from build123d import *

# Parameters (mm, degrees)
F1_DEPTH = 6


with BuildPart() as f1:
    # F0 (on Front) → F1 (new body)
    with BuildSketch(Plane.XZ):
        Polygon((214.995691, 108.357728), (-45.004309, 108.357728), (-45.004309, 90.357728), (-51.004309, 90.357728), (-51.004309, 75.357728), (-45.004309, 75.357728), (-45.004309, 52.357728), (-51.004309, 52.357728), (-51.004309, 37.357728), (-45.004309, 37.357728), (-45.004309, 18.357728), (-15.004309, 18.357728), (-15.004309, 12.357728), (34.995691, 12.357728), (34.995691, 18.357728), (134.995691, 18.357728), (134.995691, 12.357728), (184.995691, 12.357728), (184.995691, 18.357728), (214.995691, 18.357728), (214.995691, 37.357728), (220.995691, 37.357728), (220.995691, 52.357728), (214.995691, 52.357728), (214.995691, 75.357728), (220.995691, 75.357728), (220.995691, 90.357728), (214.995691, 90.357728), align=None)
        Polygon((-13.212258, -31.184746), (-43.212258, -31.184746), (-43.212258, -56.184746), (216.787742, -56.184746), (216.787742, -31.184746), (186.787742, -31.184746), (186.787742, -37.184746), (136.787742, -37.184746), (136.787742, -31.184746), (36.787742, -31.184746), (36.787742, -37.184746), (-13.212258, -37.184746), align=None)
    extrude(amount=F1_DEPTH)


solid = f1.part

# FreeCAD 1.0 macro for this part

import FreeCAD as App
import Part
import Sketcher

V = App.Vector
Q = App.Units.Quantity

doc = App.newDocument("Part")
body = doc.addObject("PartDesign::Body", "Body")
body.AllowCompound = True

sketch1 = body.newObject("Sketcher::SketchObject", "Sketch")
sketch1.AttachmentSupport = (doc.getObject("XZ_Plane"), [""])
sketch1.MapMode = "FlatFace"
sketch1.addGeometry([
    Part.LineSegment(V(215, 108, 0), V(-45, 108, 0)),
    Part.LineSegment(V(-45, 108, 0), V(-45, 90, 0)),
    Part.LineSegment(V(-45, 90, 0), V(-51, 90, 0)),
    Part.LineSegment(V(-51, 90, 0), V(-51, 75, 0)),
    Part.LineSegment(V(-51, 75, 0), V(-45, 75, 0)),
    Part.LineSegment(V(-45, 75, 0), V(-45, 52, 0)),
    Part.LineSegment(V(-45, 52, 0), V(-51, 52, 0)),
    Part.LineSegment(V(-51, 52, 0), V(-51, 37, 0)),
    Part.LineSegment(V(-51, 37, 0), V(-45, 37, 0)),
    Part.LineSegment(V(-45, 37, 0), V(-45, 18, 0)),
    Part.LineSegment(V(-45, 18, 0), V(-15, 18, 0)),
    Part.LineSegment(V(-15, 18, 0), V(-15, 12, 0)),
    Part.LineSegment(V(-15, 12, 0), V(35, 12, 0)),
    Part.LineSegment(V(35, 12, 0), V(35, 18, 0)),
    Part.LineSegment(V(35, 18, 0), V(135, 18, 0)),
    Part.LineSegment(V(135, 18, 0), V(135, 12, 0)),
    Part.LineSegment(V(135, 12, 0), V(185, 12, 0)),
    Part.LineSegment(V(185, 12, 0), V(185, 18, 0)),
    Part.LineSegment(V(185, 18, 0), V(215, 18, 0)),
    Part.LineSegment(V(215, 18, 0), V(215, 37, 0)),
    Part.LineSegment(V(215, 37, 0), V(221, 37, 0)),
    Part.LineSegment(V(221, 37, 0), V(221, 52, 0)),
    Part.LineSegment(V(221, 52, 0), V(215, 52, 0)),
    Part.LineSegment(V(215, 52, 0), V(215, 75, 0)),
    Part.LineSegment(V(215, 75, 0), V(221, 75, 0)),
    Part.LineSegment(V(221, 75, 0), V(221, 90, 0)),
    Part.LineSegment(V(221, 90, 0), V(215, 90, 0)),
    Part.LineSegment(V(215, 90, 0), V(215, 108, 0)),
    Part.LineSegment(V(-13, -31, 0), V(-43, -31, 0)),
    Part.LineSegment(V(-43, -31, 0), V(-43, -56, 0)),
    Part.LineSegment(V(-43, -56, 0), V(217, -56, 0)),
    Part.LineSegment(V(217, -56, 0), V(217, -31, 0)),
    Part.LineSegment(V(217, -31, 0), V(187, -31, 0)),
    Part.LineSegment(V(187, -31, 0), V(187, -37, 0)),
    Part.LineSegment(V(187, -37, 0), V(137, -37, 0)),
    Part.LineSegment(V(137, -37, 0), V(137, -31, 0)),
    Part.LineSegment(V(137, -31, 0), V(37, -31, 0)),
    Part.LineSegment(V(37, -31, 0), V(37, -37, 0)),
    Part.LineSegment(V(37, -37, 0), V(-13, -37, 0)),
    Part.LineSegment(V(-13, -37, 0), V(-13, -31, 0)),
], False)
sketch1.addConstraint([
    Sketcher.Constraint("Coincident", 0, 2, 1, 1),
    Sketcher.Constraint("Coincident", 1, 2, 2, 1),
    Sketcher.Constraint("Coincident", 2, 2, 3, 1),
    Sketcher.Constraint("Coincident", 3, 2, 4, 1),
    Sketcher.Constraint("Coincident", 4, 2, 5, 1),
    Sketcher.Constraint("Coincident", 5, 2, 6, 1),
    Sketcher.Constraint("Coincident", 6, 2, 7, 1),
    Sketcher.Constraint("Coincident", 7, 2, 8, 1),
    Sketcher.Constraint("Coincident", 8, 2, 9, 1),
    Sketcher.Constraint("Coincident", 9, 2, 10, 1),
    Sketcher.Constraint("Coincident", 10, 2, 11, 1),
    Sketcher.Constraint("Coincident", 11, 2, 12, 1),
    Sketcher.Constraint("Coincident", 12, 2, 13, 1),
    Sketcher.Constraint("Coincident", 13, 2, 14, 1),
    Sketcher.Constraint("Coincident", 14, 2, 15, 1),
    Sketcher.Constraint("Coincident", 15, 2, 16, 1),
    Sketcher.Constraint("Coincident", 16, 2, 17, 1),
    Sketcher.Constraint("Coincident", 17, 2, 18, 1),
    Sketcher.Constraint("Coincident", 18, 2, 19, 1),
    Sketcher.Constraint("Coincident", 19, 2, 20, 1),
    Sketcher.Constraint("Coincident", 20, 2, 21, 1),
    Sketcher.Constraint("Coincident", 21, 2, 22, 1),
    Sketcher.Constraint("Coincident", 22, 2, 23, 1),
    Sketcher.Constraint("Coincident", 23, 2, 24, 1),
    Sketcher.Constraint("Coincident", 24, 2, 25, 1),
    Sketcher.Constraint("Coincident", 25, 2, 26, 1),
    Sketcher.Constraint("Coincident", 26, 2, 27, 1),
    Sketcher.Constraint("Coincident", 27, 2, 0, 1),
    Sketcher.Constraint("Coincident", 28, 2, 29, 1),
    Sketcher.Constraint("Coincident", 29, 2, 30, 1),
    Sketcher.Constraint("Coincident", 30, 2, 31, 1),
    Sketcher.Constraint("Coincident", 31, 2, 32, 1),
    Sketcher.Constraint("Coincident", 32, 2, 33, 1),
    Sketcher.Constraint("Coincident", 33, 2, 34, 1),
    Sketcher.Constraint("Coincident", 34, 2, 35, 1),
    Sketcher.Constraint("Coincident", 35, 2, 36, 1),
    Sketcher.Constraint("Coincident", 36, 2, 37, 1),
    Sketcher.Constraint("Coincident", 37, 2, 38, 1),
    Sketcher.Constraint("Coincident", 38, 2, 39, 1),
    Sketcher.Constraint("Coincident", 39, 2, 28, 1),
    Sketcher.Constraint("Horizontal", 0),
    Sketcher.Constraint("Vertical", 1),
    Sketcher.Constraint("Horizontal", 2),
    Sketcher.Constraint("Vertical", 3),
    Sketcher.Constraint("Horizontal", 4),
    Sketcher.Constraint("Vertical", 5),
    Sketcher.Constraint("Horizontal", 6),
    Sketcher.Constraint("Vertical", 7),
    Sketcher.Constraint("Horizontal", 8),
    Sketcher.Constraint("Vertical", 9),
    Sketcher.Constraint("Horizontal", 10),
    Sketcher.Constraint("Vertical", 11),
    Sketcher.Constraint("Horizontal", 12),
    Sketcher.Constraint("Vertical", 13),
    Sketcher.Constraint("Horizontal", 14),
    Sketcher.Constraint("Vertical", 15),
    Sketcher.Constraint("Horizontal", 16),
    Sketcher.Constraint("Vertical", 17),
    Sketcher.Constraint("Horizontal", 18),
    Sketcher.Constraint("Vertical", 19),
    Sketcher.Constraint("Horizontal", 20),
    Sketcher.Constraint("Vertical", 21),
    Sketcher.Constraint("Horizontal", 22),
    Sketcher.Constraint("Vertical", 23),
    Sketcher.Constraint("Horizontal", 24),
    Sketcher.Constraint("Vertical", 25),
    Sketcher.Constraint("Horizontal", 26),
    Sketcher.Constraint("Vertical", 27),
    Sketcher.Constraint("Horizontal", 28),
    Sketcher.Constraint("Vertical", 29),
    Sketcher.Constraint("Horizontal", 30),
    Sketcher.Constraint("Vertical", 31),
    Sketcher.Constraint("Horizontal", 32),
    Sketcher.Constraint("Vertical", 33),
    Sketcher.Constraint("Horizontal", 34),
    Sketcher.Constraint("Vertical", 35),
    Sketcher.Constraint("Horizontal", 36),
    Sketcher.Constraint("Vertical", 37),
    Sketcher.Constraint("Horizontal", 38),
    Sketcher.Constraint("Vertical", 39),
    Sketcher.Constraint("Horizontal", 10, 2, 13, 2),
    Sketcher.Constraint("Horizontal", 12, 2, 15, 2),
    Sketcher.Constraint("Horizontal", 14, 2, 17, 2),
    Sketcher.Constraint("Horizontal", 8, 2, 19, 2),
    Sketcher.Constraint("Horizontal", 6, 2, 21, 2),
    Sketcher.Constraint("Horizontal", 4, 2, 23, 2),
    Sketcher.Constraint("Horizontal", 2, 2, 25, 2),
    Sketcher.Constraint("Horizontal", 28, 2, 31, 2),
    Sketcher.Constraint("Horizontal", 32, 2, 35, 2),
    Sketcher.Constraint("Horizontal", 34, 2, 37, 2),
    Sketcher.Constraint("Vertical", 1, 2, 4, 2),
    Sketcher.Constraint("Vertical", 3, 2, 6, 2),
    Sketcher.Constraint("Vertical", 5, 2, 8, 2),
    Sketcher.Constraint("Vertical", 19, 2, 22, 2),
    Sketcher.Constraint("Vertical", 21, 2, 24, 2),
    Sketcher.Constraint("Vertical", 23, 2, 26, 2),
    Sketcher.Constraint("Equal", 12, 16),
    Sketcher.Constraint("Equal", 10, 18),
    Sketcher.Constraint("Equal", 8, 20),
    Sketcher.Constraint("Equal", 18, 28),
    Sketcher.Constraint("Equal", 0, 30),
    Sketcher.Constraint("Equal", 28, 32),
    Sketcher.Constraint("Equal", 16, 34),
    Sketcher.Constraint("Equal", 14, 36),
    Sketcher.Constraint("Equal", 3, 7),
    Sketcher.Constraint("Equal", 26, 11),
    Sketcher.Constraint("Equal", 17, 33),
    Sketcher.Constraint("DistanceX", 0, 2, 0, 1, Q("260 mm")),
    Sketcher.Constraint("DistanceX", 2, 2, 2, 1, Q("6 mm")),
    Sketcher.Constraint("DistanceX", 10, 1, 10, 2, Q("30 mm")),
    Sketcher.Constraint("DistanceX", 12, 1, 12, 2, Q("50 mm")),
    Sketcher.Constraint("DistanceY", 1, 2, 1, 1, Q("18 mm")),
    Sketcher.Constraint("DistanceY", 3, 2, 3, 1, Q("15 mm")),
    Sketcher.Constraint("DistanceY", 5, 2, 5, 1, Q("23 mm")),
    Sketcher.Constraint("DistanceY", 9, 2, 9, 1, Q("19 mm")),
    Sketcher.Constraint("DistanceY", 29, 2, 29, 1, Q("25 mm")),
    Sketcher.Constraint("DistanceX", 0, 2, -1, 1, Q("45.004309 mm")),
    Sketcher.Constraint("DistanceY", -1, 1, 5, 2, Q("52.357728 mm")),
    Sketcher.Constraint("DistanceX", -1, 1, 30, 2, Q("216.787742 mm")),
    Sketcher.Constraint("DistanceY", 28, 2, -1, 1, Q("31.184746 mm")),
])
pad1 = body.newObject("PartDesign::Pad", "Pad")
pad1.Profile = sketch1
pad1.Length = 6

doc.recompute()
